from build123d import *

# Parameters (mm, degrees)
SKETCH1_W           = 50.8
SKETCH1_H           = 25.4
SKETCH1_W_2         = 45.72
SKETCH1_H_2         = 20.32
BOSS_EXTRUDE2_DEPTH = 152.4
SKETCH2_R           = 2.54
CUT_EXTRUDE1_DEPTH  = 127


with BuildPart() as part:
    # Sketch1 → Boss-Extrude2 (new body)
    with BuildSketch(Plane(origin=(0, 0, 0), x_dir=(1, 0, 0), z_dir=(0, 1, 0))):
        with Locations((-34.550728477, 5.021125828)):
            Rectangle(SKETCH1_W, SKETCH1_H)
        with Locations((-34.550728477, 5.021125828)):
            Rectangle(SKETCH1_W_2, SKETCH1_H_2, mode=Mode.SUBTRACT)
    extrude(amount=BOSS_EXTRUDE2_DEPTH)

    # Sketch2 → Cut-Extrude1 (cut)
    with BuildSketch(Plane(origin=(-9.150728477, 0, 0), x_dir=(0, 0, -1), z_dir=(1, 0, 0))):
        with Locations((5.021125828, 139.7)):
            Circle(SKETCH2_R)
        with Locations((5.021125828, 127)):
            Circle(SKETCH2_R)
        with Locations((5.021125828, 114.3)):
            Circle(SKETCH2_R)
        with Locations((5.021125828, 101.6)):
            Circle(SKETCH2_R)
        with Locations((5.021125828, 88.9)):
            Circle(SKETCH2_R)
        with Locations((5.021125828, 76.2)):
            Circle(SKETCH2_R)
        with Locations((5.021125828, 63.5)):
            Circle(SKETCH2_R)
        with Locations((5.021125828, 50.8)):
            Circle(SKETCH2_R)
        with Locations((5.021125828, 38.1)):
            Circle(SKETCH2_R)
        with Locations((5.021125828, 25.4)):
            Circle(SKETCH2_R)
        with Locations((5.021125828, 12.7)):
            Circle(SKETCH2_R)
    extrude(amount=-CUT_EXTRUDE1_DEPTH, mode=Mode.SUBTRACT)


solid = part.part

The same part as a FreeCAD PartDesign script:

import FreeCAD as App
import Part
import Sketcher
Q = App.Units.Quantity

doc = App.newDocument("Part")
body = doc.addObject("PartDesign::Body", "Body")

# Sketch on XZ plane
sketch1 = body.newObject("Sketcher::SketchObject", "Sketch")
sketch1.AttachmentSupport = (doc.getObject("XZ_Plane"), [""])
sketch1.MapMode = "FlatFace"
sketch1.addGeometry([
    Part.LineSegment(App.Vector(-59.950728, -17.721126, 0), App.Vector(-59.950728, 7.678874, 0)),  # 0
    Part.LineSegment(App.Vector(-59.950728, 7.678874, 0), App.Vector(-9.150728, 7.678874, 0)),  # 1
    Part.LineSegment(App.Vector(-9.150728, 7.678874, 0), App.Vector(-9.150728, -17.721126, 0)),  # 2
    Part.LineSegment(App.Vector(-9.150728, -17.721126, 0), App.Vector(-59.950728, -17.721126, 0)),  # 3
    Part.LineSegment(App.Vector(-11.690728, 5.138874, 0), App.Vector(-57.410728, 5.138874, 0)),  # 4
    Part.LineSegment(App.Vector(-57.410728, 5.138874, 0), App.Vector(-57.410728, -15.181126, 0)),  # 5
    Part.LineSegment(App.Vector(-57.410728, -15.181126, 0), App.Vector(-11.690728, -15.181126, 0)),  # 6
    Part.LineSegment(App.Vector(-11.690728, -15.181126, 0), App.Vector(-11.690728, 5.138874, 0)),  # 7
], False)
sketch1.addConstraint([
    Sketcher.Constraint("Coincident", 0, 2, 1, 1),
    Sketcher.Constraint("Coincident", 1, 2, 2, 1),
    Sketcher.Constraint("Coincident", 2, 2, 3, 1),
    Sketcher.Constraint("Coincident", 3, 2, 0, 1),
    Sketcher.Constraint("Coincident", 4, 2, 5, 1),
    Sketcher.Constraint("Coincident", 5, 2, 6, 1),
    Sketcher.Constraint("Coincident", 6, 2, 7, 1),
    Sketcher.Constraint("Coincident", 7, 2, 4, 1),
    Sketcher.Constraint("Vertical", 0),
    Sketcher.Constraint("Horizontal", 1),
    Sketcher.Constraint("Vertical", 2),
    Sketcher.Constraint("Horizontal", 3),
    Sketcher.Constraint("Horizontal", 4),
    Sketcher.Constraint("Vertical", 5),
    Sketcher.Constraint("Horizontal", 6),
    Sketcher.Constraint("Vertical", 7),
    Sketcher.Constraint("DistanceX", 1, 1, 1, 2, Q("2 in")),
    Sketcher.Constraint("DistanceY", 0, 1, 0, 2, Q("1 in")),
    Sketcher.Constraint("DistanceX", 4, 2, 4, 1, Q("1.8 in")),
    Sketcher.Constraint("DistanceY", 5, 2, 5, 1, Q("0.8 in")),
    Sketcher.Constraint("DistanceX", 0, 2, 4, 2, Q("0.1 in")),
    Sketcher.Constraint("DistanceY", 4, 2, 0, 2, Q("0.1 in")),
    Sketcher.Constraint("DistanceX", 0, 2, -1, 1, 59.950728),
    Sketcher.Constraint("DistanceY", -1, 1, 0, 2, 7.678874),
])
pad1 = body.newObject("PartDesign::Pad", "Pad")
pad1.Profile = sketch1
pad1.Length = Q("6 in")
pad1.Reversed = True

# Sketch on YZ plane
sketch2 = body.newObject("Sketcher::SketchObject", "Sketch001")
sketch2.AttachmentSupport = (doc.getObject("YZ_Plane"), [""])
sketch2.MapMode = "FlatFace"
sketch2.AttachmentOffset = App.Placement(App.Vector(0, 0, -9.150728), App.Rotation())
sketch2.addGeometry([
    Part.Circle(App.Vector(139.7, -5.021126, 0), App.Vector(0, 0, 1), 2.54),  # 0
    Part.Circle(App.Vector(127, -5.021126, 0), App.Vector(0, 0, 1), 2.54),  # 1
    Part.Circle(App.Vector(114.3, -5.021126, 0), App.Vector(0, 0, 1), 2.54),  # 2
    Part.Circle(App.Vector(101.6, -5.021126, 0), App.Vector(0, 0, 1), 2.54),  # 3
    Part.Circle(App.Vector(88.9, -5.021126, 0), App.Vector(0, 0, 1), 2.54),  # 4
    Part.Circle(App.Vector(76.2, -5.021126, 0), App.Vector(0, 0, 1), 2.54),  # 5
    Part.Circle(App.Vector(63.5, -5.021126, 0), App.Vector(0, 0, 1), 2.54),  # 6
    Part.Circle(App.Vector(50.8, -5.021126, 0), App.Vector(0, 0, 1), 2.54),  # 7
    Part.Circle(App.Vector(38.1, -5.021126, 0), App.Vector(0, 0, 1), 2.54),  # 8
    Part.Circle(App.Vector(25.4, -5.021126, 0), App.Vector(0, 0, 1), 2.54),  # 9
    Part.Circle(App.Vector(12.7, -5.021126, 0), App.Vector(0, 0, 1), 2.54),  # 10
], False)
sketch2.addConstraint([
    Sketcher.Constraint("Equal", 0, 1),
    Sketcher.Constraint("Equal", 1, 2),
    Sketcher.Constraint("Equal", 2, 3),
    Sketcher.Constraint("Equal", 3, 4),
    Sketcher.Constraint("Equal", 4, 5),
    Sketcher.Constraint("Equal", 5, 6),
    Sketcher.Constraint("Equal", 6, 7),
    Sketcher.Constraint("Equal", 7, 8),
    Sketcher.Constraint("Equal", 8, 9),
    Sketcher.Constraint("Equal", 9, 10),
    Sketcher.Constraint("Horizontal", 0, 3, 1, 3),
    Sketcher.Constraint("Horizontal", 1, 3, 2, 3),
    Sketcher.Constraint("Horizontal", 2, 3, 3, 3),
    Sketcher.Constraint("Horizontal", 3, 3, 4, 3),
    Sketcher.Constraint("Horizontal", 4, 3, 5, 3),
    Sketcher.Constraint("Horizontal", 5, 3, 6, 3),
    Sketcher.Constraint("Horizontal", 6, 3, 7, 3),
    Sketcher.Constraint("Horizontal", 7, 3, 8, 3),
    Sketcher.Constraint("Horizontal", 8, 3, 9, 3),
    Sketcher.Constraint("Horizontal", 9, 3, 10, 3),
    Sketcher.Constraint("Diameter", 0, Q("0.2 in")),
    Sketcher.Constraint("DistanceX", -1, 1, 1, 3, Q("5 in")),
    Sketcher.Constraint("DistanceX", -1, 1, 3, 3, Q("4 in")),
    Sketcher.Constraint("DistanceX", -1, 1, 5, 3, Q("3 in")),
    Sketcher.Constraint("DistanceX", -1, 1, 7, 3, Q("2 in")),
    Sketcher.Constraint("DistanceX", -1, 1, 9, 3, Q("1 in")),
    Sketcher.Constraint("DistanceX", 2, 3, 0, 3, Q("1 in")),
    Sketcher.Constraint("DistanceX", 4, 3, 2, 3, Q("1 in")),
    Sketcher.Constraint("DistanceX", 6, 3, 4, 3, Q("1 in")),
    Sketcher.Constraint("DistanceX", 8, 3, 6, 3, Q("1 in")),
    Sketcher.Constraint("DistanceX", 10, 3, 8, 3, Q("1 in")),
    Sketcher.Constraint("DistanceX", -1, 1, 0, 3, Q("5.5 in")),
    Sketcher.Constraint("DistanceY", 0, 3, -1, 1, 5.021126),
])
pocket1 = body.newObject("PartDesign::Pocket", "Pocket")
pocket1.Profile = sketch2
pocket1.Length = Q("5 in")

doc.recompute()
